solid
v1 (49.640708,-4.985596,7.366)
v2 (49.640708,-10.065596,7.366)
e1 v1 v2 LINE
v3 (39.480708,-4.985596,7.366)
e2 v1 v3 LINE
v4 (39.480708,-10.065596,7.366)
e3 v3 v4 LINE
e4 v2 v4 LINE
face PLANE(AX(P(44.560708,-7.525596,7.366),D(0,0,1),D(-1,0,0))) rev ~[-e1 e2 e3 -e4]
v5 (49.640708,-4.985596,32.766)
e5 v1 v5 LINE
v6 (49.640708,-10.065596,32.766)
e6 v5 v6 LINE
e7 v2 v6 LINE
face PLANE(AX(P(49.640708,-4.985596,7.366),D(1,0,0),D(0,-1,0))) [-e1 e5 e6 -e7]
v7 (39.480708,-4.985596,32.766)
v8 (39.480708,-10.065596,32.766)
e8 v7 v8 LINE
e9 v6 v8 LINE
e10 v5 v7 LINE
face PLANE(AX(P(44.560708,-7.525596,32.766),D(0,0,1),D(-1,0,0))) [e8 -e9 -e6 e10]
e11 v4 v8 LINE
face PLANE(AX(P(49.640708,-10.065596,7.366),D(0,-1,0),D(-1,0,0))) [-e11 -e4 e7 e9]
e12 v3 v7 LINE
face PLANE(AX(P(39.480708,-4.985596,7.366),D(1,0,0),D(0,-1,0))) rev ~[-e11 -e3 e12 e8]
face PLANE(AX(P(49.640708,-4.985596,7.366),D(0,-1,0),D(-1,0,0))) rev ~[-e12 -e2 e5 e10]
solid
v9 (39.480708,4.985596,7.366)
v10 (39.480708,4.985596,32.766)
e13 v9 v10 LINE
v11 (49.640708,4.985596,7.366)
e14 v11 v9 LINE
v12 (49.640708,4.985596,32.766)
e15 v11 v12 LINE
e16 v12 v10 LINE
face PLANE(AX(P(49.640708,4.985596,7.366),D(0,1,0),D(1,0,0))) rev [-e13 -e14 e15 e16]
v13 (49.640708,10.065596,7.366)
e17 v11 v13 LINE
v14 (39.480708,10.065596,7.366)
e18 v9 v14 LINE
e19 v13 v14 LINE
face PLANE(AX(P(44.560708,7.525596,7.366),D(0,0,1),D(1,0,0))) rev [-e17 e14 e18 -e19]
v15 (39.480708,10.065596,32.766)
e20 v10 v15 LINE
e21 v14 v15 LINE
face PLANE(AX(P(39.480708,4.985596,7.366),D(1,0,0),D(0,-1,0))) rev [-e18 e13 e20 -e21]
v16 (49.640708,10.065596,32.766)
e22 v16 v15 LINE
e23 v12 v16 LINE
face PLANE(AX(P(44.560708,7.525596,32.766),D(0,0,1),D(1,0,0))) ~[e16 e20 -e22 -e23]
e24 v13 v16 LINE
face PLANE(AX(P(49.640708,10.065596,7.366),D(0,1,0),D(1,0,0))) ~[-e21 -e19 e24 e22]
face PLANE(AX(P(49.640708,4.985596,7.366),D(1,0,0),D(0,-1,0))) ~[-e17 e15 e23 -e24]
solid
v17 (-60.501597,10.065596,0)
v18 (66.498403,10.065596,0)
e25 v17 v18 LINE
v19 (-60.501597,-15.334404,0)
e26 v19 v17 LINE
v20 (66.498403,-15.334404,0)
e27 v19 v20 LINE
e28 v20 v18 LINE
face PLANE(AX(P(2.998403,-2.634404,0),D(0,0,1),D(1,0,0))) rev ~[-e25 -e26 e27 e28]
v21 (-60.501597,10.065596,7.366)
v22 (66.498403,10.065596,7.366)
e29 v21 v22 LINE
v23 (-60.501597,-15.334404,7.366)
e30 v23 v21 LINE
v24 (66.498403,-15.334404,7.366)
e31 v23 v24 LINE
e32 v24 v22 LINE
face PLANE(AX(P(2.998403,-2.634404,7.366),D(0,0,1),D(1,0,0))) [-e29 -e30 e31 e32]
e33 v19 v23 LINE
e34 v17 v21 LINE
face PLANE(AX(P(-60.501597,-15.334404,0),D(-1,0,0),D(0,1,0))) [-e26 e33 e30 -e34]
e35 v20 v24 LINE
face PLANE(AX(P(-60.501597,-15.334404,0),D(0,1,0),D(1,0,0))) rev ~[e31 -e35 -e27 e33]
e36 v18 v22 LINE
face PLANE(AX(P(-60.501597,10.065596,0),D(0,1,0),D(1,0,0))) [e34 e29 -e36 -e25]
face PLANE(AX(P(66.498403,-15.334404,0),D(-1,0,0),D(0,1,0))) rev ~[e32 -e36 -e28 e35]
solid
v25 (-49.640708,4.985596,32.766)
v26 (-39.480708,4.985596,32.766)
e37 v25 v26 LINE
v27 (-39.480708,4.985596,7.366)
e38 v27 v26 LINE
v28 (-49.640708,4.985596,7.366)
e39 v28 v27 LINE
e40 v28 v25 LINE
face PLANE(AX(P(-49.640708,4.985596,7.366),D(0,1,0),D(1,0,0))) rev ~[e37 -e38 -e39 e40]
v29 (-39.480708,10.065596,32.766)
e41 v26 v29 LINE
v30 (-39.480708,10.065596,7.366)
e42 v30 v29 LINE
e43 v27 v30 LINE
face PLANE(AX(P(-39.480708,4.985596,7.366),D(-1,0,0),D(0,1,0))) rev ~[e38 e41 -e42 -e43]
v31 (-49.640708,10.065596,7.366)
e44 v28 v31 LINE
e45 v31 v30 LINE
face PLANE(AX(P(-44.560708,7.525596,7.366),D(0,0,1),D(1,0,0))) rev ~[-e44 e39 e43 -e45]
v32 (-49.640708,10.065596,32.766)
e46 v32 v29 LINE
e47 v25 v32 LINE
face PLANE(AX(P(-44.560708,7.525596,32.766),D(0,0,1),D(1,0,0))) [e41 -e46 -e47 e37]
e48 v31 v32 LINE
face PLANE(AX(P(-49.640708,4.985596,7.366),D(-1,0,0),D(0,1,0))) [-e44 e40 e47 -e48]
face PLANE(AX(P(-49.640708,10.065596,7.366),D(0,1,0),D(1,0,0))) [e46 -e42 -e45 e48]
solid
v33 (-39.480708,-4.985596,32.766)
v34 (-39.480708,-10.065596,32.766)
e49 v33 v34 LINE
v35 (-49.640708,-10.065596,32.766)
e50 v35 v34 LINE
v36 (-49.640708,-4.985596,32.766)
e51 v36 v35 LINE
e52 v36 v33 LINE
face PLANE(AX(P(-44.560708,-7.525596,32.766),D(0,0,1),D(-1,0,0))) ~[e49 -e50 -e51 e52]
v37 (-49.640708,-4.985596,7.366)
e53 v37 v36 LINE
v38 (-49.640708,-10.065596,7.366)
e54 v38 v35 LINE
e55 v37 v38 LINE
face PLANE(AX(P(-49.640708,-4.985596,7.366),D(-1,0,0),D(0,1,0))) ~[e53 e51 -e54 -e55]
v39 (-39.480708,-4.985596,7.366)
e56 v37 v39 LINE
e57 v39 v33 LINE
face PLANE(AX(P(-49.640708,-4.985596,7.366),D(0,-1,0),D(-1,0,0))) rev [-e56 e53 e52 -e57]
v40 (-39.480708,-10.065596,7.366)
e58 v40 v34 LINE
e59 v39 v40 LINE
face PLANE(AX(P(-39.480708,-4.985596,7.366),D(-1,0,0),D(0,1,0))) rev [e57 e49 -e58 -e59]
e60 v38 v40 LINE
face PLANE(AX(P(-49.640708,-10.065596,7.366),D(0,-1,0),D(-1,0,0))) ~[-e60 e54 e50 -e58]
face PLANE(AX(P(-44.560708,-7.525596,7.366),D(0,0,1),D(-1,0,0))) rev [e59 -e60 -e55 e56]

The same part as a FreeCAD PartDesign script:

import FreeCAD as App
import Part
import Sketcher
Q = App.Units.Quantity


def add_polygon(sketch, points):
    """Adds a closed chain of lines whose ends are joined by coincident constraints."""
    first, n = sketch.GeometryCount, len(points)
    for a, b in zip(points, points[1:] + points[:1]):
        sketch.addGeometry(Part.LineSegment(App.Vector(*a, 0), App.Vector(*b, 0)), False)
    for i in range(n):
        sketch.addConstraint(Sketcher.Constraint("Coincident", first + i, 2, first + (i + 1) % n, 1))

doc = App.newDocument("Part")
body = doc.addObject("PartDesign::Body", "Body")

# Sketch on XY plane
sketch1 = doc.addObject("Sketcher::SketchObject", "Sketch")
body.addObject(sketch1)
sketch1.AttachmentSupport = (doc.XY_Plane, [""])
sketch1.MapMode = "FlatFace"
add_polygon(sketch1, [(-60.501597, 10.065596), (-60.501597, -15.334404), (66.498403, -15.334404), (66.498403, 10.065596)])  # lines 0-3
sketch1.addConstraint([
    Sketcher.Constraint("Vertical", 0),
    Sketcher.Constraint("Horizontal", 1),
    Sketcher.Constraint("Vertical", 2),
    Sketcher.Constraint("Horizontal", 3),
    Sketcher.Constraint("DistanceX", 1, 1, 1, 2, Q("5 in")),
    Sketcher.Constraint("DistanceY", 0, 2, 0, 1, Q("1 in")),
    Sketcher.Constraint("DistanceX", 0, 2, -1, 1, 60.501597),
    Sketcher.Constraint("DistanceY", 0, 2, -1, 1, 15.334404),
])
pad1 = doc.addObject("PartDesign::Pad", "Pad")
body.addObject(pad1)
pad1.Profile = sketch1
pad1.Length = Q("0.29 in")
body2 = doc.addObject("PartDesign::Body", "Body001")

# Sketch on XY plane
sketch2 = doc.addObject("Sketcher::SketchObject", "Sketch001")
body2.addObject(sketch2)
sketch2.AttachmentSupport = (doc.getObject("XY_Plane001"), [""])
sketch2.MapMode = "FlatFace"
sketch2.AttachmentOffset = App.Placement(App.Vector(0, 0, 0.29 * 25.4), App.Rotation())
add_polygon(sketch2, [(-49.640708, 10.065596), (-49.640708, 4.985596), (-39.480708, 4.985596), (-39.480708, 10.065596)])  # lines 0-3
sketch2.addConstraint([
    Sketcher.Constraint("Vertical", 0),
    Sketcher.Constraint("Horizontal", 1),
    Sketcher.Constraint("Vertical", 2),
    Sketcher.Constraint("Horizontal", 3),
    Sketcher.Constraint("DistanceX", 1, 1, 1, 2, Q("0.4 in")),
    Sketcher.Constraint("DistanceY", 0, 2, 0, 1, Q("0.2 in")),
    Sketcher.Constraint("DistanceX", 0, 2, -1, 1, 49.640708),
    Sketcher.Constraint("DistanceY", -1, 1, 0, 2, 4.985596),
])
pad2 = doc.addObject("PartDesign::Pad", "Pad001")
body2.addObject(pad2)
pad2.Profile = sketch2
pad2.Length = Q("1 in")
body3 = doc.addObject("PartDesign::Body", "Body002")
doc.recompute()

mirroring = doc.addObject("Part::Mirroring", "Mirroring")
mirroring.Source = body2
mirroring.Base = App.Vector(0, 0, 0)
mirroring.Normal = App.Vector(1, 0, 0)
body3.BaseFeature = mirroring
doc.recompute()
body4 = doc.addObject("PartDesign::Body", "Body003")
doc.recompute()

mirroring2 = doc.addObject("Part::Mirroring", "Mirroring001")
mirroring2.Source = body2
mirroring2.Base = App.Vector(0, 0, 0)
mirroring2.Normal = App.Vector(0, -1, 0)
body4.BaseFeature = mirroring2
doc.recompute()
body5 = doc.addObject("PartDesign::Body", "Body004")
doc.recompute()

mirroring3 = doc.addObject("Part::Mirroring", "Mirroring002")
mirroring3.Source = body3
mirroring3.Base = App.Vector(0, 0, 0)
mirroring3.Normal = App.Vector(0, -1, 0)
body5.BaseFeature = mirroring3
doc.recompute()
mirroring.Visibility = False
mirroring2.Visibility = False
mirroring3.Visibility = False

doc.recompute()
